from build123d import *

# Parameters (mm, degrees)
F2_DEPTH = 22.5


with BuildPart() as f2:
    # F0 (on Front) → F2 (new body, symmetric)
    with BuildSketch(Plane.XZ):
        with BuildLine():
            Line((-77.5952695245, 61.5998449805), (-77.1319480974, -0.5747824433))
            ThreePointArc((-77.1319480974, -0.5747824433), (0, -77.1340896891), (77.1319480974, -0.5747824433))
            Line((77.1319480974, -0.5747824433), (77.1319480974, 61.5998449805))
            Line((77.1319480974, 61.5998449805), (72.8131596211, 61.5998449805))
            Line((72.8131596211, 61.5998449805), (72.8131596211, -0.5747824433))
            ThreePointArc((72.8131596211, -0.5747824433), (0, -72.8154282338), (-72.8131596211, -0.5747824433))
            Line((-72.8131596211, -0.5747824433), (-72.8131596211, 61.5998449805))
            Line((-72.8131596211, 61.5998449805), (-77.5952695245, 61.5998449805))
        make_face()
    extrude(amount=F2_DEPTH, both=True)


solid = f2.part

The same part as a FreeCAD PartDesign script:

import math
import FreeCAD as App
import Part
import Sketcher

V = App.Vector
Q = App.Units.Quantity

doc = App.newDocument("Part")
body = doc.addObject("PartDesign::Body", "Body")

# Sketch on XZ plane
sketch1 = body.newObject("Sketcher::SketchObject", "Sketch")
sketch1.AttachmentSupport = (doc.getObject("XZ_Plane"), [""])
sketch1.MapMode = "FlatFace"
sketch1.addGeometry([
    Part.LineSegment(V(-77.59527, 61.599845, 0), V(-77.131948, -0.574782, 0)),  # 0
    Part.ArcOfCircle(Part.Circle(V(0, 0, 0), V(0, 0, 1), 77.13409), math.radians(-179.573043), math.radians(-0.426957)),  # 1
    Part.LineSegment(V(77.131948, -0.574782, 0), V(77.131948, 61.599845, 0)),  # 2
    Part.LineSegment(V(77.131948, 61.599845, 0), V(72.81316, 61.599845, 0)),  # 3
    Part.LineSegment(V(72.81316, 61.599845, 0), V(72.81316, -0.574782, 0)),  # 4
    Part.ArcOfCircle(Part.Circle(V(0, 0, 0), V(0, 0, 1), 72.815428), math.radians(-179.54772), math.radians(-0.45228)),  # 5
    Part.LineSegment(V(-72.81316, -0.574782, 0), V(-72.81316, 61.599845, 0)),  # 6
    Part.LineSegment(V(-72.81316, 61.599845, 0), V(-77.59527, 61.599845, 0)),  # 7
], False)
sketch1.addConstraint([
    Sketcher.Constraint("Tangent", 0, 2, 1, 1),
    Sketcher.Constraint("Coincident", 1, 2, 2, 1),
    Sketcher.Constraint("Coincident", 2, 2, 3, 1),
    Sketcher.Constraint("Coincident", 3, 2, 4, 1),
    Sketcher.Constraint("Coincident", 4, 2, 5, 2),
    Sketcher.Constraint("Coincident", 5, 1, 6, 1),
    Sketcher.Constraint("Coincident", 6, 2, 7, 1),
    Sketcher.Constraint("Coincident", 7, 2, 0, 1),
    Sketcher.Constraint("Vertical", 2),
    Sketcher.Constraint("Horizontal", 3),
    Sketcher.Constraint("Vertical", 4),
    Sketcher.Constraint("Vertical", 6),
    Sketcher.Constraint("Horizontal", 7),
    Sketcher.Constraint("Coincident", 1, 3, -1, 1),
    Sketcher.Constraint("Coincident", 5, 3, -1, 1),
    Sketcher.Constraint("Symmetric", 3, 2, 6, 2, -2),
    Sketcher.Constraint("Horizontal", 0, 2, 1, 2),
    Sketcher.Constraint("Horizontal", 1, 2, 4, 2),
    Sketcher.Constraint("Radius", 1, Q("77.13409 mm")),
    Sketcher.Constraint("Radius", 5, Q("72.815428 mm")),
    Sketcher.Constraint("DistanceX", 7, 2, 7, 1, Q("4.78211 mm")),
    Sketcher.Constraint("DistanceY", 2, 1, 2, 2, Q("62.174627 mm")),
])
pad1 = body.newObject("PartDesign::Pad", "Pad")
pad1.Profile = sketch1
pad1.Length = 45
pad1.Midplane = True

doc.recompute()
